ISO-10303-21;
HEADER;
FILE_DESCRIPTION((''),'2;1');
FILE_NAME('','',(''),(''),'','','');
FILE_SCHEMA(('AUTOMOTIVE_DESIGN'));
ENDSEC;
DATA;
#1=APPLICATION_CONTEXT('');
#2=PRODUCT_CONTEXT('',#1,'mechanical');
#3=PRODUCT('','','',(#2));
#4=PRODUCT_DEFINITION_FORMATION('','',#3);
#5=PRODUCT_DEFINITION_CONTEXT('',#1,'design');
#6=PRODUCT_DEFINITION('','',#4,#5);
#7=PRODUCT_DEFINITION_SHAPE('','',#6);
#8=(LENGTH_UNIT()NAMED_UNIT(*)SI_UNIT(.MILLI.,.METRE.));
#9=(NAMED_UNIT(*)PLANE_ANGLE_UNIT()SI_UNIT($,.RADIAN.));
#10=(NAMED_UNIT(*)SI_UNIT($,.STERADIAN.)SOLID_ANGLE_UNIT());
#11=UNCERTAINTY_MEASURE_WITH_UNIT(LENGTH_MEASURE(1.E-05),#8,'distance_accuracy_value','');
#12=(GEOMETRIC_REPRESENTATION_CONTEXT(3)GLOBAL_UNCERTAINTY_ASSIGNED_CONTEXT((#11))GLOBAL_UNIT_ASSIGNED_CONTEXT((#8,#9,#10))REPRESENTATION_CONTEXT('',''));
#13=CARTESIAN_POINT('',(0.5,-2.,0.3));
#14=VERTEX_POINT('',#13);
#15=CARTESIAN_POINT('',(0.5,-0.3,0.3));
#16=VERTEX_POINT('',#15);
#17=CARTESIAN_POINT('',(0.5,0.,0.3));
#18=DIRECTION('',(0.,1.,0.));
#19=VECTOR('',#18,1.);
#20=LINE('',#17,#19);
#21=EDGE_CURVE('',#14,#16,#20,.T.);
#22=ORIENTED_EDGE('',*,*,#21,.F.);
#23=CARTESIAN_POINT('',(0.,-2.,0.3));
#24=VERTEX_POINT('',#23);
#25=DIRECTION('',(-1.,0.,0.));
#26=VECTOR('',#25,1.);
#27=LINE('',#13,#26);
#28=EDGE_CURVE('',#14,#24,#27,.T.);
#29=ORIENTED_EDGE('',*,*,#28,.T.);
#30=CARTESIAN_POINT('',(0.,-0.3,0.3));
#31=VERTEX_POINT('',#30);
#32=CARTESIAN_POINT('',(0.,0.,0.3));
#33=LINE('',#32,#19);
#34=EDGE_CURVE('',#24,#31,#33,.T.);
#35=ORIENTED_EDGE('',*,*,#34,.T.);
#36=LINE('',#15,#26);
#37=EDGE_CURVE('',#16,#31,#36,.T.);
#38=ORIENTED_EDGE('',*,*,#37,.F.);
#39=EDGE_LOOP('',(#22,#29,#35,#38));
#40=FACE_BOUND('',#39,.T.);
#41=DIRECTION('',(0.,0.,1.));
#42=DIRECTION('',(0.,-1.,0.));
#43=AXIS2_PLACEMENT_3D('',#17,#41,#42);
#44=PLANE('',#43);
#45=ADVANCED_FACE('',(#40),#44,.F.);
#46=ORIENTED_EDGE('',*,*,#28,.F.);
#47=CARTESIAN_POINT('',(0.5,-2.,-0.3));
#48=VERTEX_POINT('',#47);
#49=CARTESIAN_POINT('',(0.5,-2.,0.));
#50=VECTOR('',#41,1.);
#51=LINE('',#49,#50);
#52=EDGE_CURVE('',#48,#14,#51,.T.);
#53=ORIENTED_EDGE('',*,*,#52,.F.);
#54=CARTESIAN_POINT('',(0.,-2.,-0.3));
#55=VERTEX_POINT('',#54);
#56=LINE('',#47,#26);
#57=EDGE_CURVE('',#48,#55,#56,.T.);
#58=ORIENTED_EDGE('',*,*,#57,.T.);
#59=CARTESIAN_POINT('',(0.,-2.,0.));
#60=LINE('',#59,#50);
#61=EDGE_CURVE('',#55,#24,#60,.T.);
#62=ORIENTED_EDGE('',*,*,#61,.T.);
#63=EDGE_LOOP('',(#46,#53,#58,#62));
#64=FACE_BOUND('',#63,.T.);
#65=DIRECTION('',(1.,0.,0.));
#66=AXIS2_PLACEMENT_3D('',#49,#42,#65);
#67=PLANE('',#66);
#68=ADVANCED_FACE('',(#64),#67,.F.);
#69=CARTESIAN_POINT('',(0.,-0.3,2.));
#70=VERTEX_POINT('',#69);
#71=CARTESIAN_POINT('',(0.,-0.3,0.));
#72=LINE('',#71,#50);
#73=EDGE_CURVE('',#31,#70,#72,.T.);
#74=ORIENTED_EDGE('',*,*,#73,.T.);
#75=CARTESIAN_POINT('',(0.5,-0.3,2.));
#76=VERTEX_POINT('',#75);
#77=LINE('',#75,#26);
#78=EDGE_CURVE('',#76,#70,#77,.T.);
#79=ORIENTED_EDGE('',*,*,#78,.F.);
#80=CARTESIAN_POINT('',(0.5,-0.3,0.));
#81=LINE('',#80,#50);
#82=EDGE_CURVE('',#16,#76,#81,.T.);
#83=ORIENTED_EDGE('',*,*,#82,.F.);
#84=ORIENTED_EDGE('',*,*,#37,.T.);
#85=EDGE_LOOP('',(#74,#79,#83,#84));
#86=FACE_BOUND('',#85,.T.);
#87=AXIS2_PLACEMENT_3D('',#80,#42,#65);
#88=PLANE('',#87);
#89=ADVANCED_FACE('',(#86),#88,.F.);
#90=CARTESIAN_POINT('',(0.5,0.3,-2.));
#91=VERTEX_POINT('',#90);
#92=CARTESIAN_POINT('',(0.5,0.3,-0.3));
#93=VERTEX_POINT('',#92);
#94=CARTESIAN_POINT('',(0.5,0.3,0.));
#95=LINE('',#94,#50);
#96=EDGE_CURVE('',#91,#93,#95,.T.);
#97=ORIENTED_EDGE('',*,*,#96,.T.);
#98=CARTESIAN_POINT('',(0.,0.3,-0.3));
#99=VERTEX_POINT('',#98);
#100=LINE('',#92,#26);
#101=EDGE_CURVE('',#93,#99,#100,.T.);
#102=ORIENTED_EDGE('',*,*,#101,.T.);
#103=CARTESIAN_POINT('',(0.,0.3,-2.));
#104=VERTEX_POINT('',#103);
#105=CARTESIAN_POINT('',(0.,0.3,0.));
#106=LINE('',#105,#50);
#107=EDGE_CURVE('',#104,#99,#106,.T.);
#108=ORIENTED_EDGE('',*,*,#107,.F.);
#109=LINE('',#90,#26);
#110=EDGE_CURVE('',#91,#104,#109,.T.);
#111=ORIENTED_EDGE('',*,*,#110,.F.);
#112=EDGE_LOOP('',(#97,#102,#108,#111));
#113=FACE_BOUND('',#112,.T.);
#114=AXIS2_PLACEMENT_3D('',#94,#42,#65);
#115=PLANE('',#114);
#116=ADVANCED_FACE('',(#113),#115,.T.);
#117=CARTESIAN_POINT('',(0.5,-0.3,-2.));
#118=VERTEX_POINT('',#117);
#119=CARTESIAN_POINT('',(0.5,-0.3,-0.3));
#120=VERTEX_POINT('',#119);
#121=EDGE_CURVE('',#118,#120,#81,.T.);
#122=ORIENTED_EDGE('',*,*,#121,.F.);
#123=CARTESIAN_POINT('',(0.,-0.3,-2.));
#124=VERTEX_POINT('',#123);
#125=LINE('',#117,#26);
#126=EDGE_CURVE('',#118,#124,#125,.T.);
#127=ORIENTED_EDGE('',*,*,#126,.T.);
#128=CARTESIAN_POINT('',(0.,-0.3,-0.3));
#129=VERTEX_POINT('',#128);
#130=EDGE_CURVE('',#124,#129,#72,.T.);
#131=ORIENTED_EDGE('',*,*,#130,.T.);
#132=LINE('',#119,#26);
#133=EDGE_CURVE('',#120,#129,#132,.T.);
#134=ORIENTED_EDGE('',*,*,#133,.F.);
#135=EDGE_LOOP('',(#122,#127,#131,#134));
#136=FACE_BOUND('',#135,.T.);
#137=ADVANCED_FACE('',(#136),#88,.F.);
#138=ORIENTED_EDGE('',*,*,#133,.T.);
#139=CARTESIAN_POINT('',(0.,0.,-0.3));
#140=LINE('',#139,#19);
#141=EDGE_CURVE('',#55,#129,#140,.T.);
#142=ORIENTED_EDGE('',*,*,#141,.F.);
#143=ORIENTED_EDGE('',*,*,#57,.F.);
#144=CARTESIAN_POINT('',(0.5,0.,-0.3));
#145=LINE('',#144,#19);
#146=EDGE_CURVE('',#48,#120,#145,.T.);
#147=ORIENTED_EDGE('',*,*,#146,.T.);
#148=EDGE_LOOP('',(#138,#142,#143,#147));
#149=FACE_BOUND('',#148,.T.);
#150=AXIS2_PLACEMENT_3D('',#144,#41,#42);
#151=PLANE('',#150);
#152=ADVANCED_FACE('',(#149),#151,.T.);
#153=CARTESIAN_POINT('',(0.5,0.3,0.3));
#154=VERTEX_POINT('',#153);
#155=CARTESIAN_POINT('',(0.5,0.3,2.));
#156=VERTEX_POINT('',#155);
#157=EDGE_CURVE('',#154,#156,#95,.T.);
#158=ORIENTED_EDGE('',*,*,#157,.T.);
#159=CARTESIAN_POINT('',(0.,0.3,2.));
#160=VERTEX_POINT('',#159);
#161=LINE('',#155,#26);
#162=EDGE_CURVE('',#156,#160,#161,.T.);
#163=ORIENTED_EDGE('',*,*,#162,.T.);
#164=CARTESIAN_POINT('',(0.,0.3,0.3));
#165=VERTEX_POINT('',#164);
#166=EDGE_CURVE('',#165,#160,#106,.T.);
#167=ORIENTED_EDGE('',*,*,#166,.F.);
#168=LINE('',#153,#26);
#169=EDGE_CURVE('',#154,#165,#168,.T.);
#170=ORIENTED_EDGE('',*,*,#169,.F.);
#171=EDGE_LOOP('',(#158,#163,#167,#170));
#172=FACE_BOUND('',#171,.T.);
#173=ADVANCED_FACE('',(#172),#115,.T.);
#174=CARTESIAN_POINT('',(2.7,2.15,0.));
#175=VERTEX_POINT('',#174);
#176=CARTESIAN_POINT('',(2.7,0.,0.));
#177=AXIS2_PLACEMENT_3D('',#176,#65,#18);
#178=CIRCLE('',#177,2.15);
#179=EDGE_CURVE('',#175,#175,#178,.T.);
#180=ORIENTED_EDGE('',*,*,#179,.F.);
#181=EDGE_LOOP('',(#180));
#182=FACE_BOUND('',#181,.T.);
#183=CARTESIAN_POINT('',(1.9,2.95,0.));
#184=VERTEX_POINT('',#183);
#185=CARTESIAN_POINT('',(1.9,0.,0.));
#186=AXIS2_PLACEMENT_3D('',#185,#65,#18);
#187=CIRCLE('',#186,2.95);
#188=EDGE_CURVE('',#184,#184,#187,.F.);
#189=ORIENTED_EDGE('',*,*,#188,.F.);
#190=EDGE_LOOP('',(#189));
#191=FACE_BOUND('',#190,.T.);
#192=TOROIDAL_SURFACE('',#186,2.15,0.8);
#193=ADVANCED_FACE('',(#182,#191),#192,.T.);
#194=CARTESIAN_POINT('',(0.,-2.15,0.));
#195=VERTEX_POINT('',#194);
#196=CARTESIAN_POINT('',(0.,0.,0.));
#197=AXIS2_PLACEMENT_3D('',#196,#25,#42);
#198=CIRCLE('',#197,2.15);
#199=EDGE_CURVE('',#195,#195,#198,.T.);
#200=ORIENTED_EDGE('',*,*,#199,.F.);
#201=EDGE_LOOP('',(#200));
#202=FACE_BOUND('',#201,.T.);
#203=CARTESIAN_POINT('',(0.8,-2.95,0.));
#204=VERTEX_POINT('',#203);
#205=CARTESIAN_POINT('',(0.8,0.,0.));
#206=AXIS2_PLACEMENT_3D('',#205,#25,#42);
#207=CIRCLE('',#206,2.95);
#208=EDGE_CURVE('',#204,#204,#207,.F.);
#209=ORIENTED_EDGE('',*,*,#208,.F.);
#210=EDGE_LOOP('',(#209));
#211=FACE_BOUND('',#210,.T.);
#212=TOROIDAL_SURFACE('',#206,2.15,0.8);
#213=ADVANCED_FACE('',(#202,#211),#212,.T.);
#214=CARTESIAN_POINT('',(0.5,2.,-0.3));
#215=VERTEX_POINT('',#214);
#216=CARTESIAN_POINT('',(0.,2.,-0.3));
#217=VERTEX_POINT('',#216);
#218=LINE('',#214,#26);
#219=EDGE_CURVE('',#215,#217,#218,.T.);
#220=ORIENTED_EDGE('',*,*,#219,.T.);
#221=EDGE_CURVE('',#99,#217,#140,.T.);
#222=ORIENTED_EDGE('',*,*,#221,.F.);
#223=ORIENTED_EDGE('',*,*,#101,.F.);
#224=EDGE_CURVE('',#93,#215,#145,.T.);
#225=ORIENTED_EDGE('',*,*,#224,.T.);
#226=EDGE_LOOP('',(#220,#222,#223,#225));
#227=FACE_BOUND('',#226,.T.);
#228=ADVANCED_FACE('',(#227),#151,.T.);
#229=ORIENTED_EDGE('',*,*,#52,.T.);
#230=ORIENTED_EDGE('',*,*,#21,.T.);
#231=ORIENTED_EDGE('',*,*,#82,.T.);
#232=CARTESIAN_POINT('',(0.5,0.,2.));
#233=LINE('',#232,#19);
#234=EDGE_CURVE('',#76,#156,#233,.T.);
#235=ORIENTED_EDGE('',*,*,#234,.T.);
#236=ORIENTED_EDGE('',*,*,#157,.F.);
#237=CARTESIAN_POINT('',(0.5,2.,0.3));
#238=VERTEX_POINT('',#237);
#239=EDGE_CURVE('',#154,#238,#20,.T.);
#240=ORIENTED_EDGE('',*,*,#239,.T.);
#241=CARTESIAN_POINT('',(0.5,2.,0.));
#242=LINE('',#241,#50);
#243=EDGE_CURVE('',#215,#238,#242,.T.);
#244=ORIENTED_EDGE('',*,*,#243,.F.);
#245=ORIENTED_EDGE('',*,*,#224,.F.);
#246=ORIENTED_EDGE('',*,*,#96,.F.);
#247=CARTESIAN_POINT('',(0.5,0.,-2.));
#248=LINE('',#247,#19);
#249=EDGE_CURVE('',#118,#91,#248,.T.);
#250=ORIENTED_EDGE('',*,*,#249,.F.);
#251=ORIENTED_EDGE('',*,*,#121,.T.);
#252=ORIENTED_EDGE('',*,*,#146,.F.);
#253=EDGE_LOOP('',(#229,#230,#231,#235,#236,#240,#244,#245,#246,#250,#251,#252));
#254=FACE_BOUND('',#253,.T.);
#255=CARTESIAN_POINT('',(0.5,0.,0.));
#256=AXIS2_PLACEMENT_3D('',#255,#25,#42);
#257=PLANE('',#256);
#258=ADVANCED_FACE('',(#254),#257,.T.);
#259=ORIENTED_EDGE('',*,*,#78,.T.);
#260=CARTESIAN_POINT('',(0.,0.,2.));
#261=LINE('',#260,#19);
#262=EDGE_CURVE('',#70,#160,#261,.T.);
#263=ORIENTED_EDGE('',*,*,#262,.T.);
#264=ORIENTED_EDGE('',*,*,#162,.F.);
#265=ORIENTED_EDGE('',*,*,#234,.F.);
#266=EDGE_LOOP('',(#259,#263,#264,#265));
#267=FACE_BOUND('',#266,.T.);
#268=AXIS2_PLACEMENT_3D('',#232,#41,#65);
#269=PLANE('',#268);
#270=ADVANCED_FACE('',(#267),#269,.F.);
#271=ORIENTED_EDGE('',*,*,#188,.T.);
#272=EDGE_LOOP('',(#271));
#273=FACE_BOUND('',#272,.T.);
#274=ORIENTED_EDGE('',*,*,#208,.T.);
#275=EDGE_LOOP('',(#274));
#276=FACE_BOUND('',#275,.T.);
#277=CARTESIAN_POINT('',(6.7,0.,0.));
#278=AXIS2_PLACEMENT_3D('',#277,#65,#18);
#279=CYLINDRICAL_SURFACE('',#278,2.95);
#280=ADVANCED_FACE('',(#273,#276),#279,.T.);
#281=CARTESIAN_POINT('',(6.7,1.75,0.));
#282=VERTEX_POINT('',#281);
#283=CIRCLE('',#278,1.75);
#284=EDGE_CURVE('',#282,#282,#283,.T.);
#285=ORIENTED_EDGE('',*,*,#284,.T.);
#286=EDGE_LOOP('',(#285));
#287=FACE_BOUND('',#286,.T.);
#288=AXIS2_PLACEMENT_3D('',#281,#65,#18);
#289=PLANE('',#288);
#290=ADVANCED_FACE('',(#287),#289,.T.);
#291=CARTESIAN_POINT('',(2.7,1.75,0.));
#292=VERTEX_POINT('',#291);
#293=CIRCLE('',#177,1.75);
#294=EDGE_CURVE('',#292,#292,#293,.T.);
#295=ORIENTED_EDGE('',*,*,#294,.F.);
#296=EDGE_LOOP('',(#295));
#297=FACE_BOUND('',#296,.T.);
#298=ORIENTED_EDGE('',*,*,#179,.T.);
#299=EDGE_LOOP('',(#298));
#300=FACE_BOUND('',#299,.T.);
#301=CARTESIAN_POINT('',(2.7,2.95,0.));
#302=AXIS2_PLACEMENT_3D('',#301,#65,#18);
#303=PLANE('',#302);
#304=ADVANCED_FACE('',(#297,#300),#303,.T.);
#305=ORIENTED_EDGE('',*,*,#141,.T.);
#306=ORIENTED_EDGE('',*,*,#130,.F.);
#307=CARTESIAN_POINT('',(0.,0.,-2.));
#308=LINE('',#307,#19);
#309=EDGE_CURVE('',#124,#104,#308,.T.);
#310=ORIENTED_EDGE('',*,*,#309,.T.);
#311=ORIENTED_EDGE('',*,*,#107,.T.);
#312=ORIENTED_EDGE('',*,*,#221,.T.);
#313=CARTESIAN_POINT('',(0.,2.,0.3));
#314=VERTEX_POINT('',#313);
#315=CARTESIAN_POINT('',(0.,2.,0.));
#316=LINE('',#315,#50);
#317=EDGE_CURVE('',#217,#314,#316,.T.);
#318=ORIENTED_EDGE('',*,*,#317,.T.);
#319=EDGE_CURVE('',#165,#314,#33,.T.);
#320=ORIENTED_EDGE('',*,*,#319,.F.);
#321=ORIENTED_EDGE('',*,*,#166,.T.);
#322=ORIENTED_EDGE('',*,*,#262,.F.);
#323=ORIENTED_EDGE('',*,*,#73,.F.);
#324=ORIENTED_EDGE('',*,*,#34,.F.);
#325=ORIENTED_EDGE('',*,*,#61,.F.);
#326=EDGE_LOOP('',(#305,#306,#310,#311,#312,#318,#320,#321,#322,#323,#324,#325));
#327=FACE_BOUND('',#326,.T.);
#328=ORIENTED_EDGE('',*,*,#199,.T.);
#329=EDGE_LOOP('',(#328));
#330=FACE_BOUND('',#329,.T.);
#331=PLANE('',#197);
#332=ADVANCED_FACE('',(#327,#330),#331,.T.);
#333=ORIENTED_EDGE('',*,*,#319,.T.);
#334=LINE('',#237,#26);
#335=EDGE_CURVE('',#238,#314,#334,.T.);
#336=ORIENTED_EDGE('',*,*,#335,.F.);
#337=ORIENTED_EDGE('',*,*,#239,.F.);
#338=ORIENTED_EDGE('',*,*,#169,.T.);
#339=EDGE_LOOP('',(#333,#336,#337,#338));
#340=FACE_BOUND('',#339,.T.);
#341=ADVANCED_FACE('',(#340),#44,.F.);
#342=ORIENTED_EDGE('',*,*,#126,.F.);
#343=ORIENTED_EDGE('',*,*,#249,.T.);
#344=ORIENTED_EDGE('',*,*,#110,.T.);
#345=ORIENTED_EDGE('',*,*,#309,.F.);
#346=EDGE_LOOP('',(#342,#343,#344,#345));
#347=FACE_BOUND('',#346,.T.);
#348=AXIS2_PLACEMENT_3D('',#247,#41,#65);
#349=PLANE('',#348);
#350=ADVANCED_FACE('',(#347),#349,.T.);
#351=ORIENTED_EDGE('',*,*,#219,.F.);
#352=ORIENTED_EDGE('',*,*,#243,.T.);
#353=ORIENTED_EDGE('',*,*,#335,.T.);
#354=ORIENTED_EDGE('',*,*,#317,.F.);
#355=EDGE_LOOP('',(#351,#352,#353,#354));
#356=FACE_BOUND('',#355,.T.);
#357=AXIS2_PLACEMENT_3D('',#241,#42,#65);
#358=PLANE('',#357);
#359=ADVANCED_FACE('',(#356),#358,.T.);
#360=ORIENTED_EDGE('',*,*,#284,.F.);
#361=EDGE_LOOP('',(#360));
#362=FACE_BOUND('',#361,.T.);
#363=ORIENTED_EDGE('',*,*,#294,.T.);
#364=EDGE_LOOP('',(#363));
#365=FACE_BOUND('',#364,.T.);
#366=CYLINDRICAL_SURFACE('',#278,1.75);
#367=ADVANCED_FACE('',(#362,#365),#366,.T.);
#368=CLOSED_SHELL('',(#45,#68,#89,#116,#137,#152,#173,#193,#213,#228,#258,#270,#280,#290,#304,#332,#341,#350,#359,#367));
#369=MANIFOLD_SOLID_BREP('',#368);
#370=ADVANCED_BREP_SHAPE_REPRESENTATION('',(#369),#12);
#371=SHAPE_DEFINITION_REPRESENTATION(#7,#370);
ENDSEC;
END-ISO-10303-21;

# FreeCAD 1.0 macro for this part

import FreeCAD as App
import Part
import Sketcher

V = App.Vector
Q = App.Units.Quantity


def edges_at(feature, points):
    """Names of the edges that pass closest to the given points."""
    edges = feature.Shape.Edges
    near = lambda p: min(range(len(edges)), key=lambda i: edges[i].distToShape(Part.Vertex(*p))[0])
    return sorted({f"Edge{near(p) + 1}" for p in points})

doc = App.newDocument("Part")
params = doc.addObject("Spreadsheet::Sheet", "Params")
for row, (alias, value) in enumerate([
    ("sketch1_width", "4 mm"),
    ("sketch1_width2", "6.7 mm"),
    ("sketch1_height", "1.2 mm"),
    ("sketch1_height2", "2.95 mm"),
    ("revolution_angle", "360 deg"),
    ("sketch2_width", "0.6 mm"),
    ("sketch2_width2", "1.7 mm"),
    ("pocket1_length", "0.5 mm"),
    ("fillet_radius", "0.8 mm"),
], start=1):
    params.set(f"A{row}", alias)
    params.set(f"B{row}", "=" + value)
    params.setAlias(f"B{row}", alias)

body = doc.addObject("PartDesign::Body", "Body")

sketch1 = doc.addObject("Sketcher::SketchObject", "Sketch")
body.addObject(sketch1)
sketch1.AttachmentSupport = (doc.XY_Plane, [""])
sketch1.MapMode = "FlatFace"
sketch1.addGeometry(Part.LineSegment(V(0, 3, 0), V(0, 0, 0)), False)
sketch1.addGeometry(Part.LineSegment(V(0, 0, 0), V(6.7, 0, 0)), False)
sketch1.addGeometry(Part.LineSegment(V(6.7, 0, 0), V(6.7, 1.8, 0)), False)
sketch1.addGeometry(Part.LineSegment(V(6.7, 1.8, 0), V(2.7, 1.8, 0)), False)
sketch1.addGeometry(Part.LineSegment(V(2.7, 1.8, 0), V(2.7, 3, 0)), False)
sketch1.addGeometry(Part.LineSegment(V(2.7, 3, 0), V(0, 3, 0)), False)
sketch1.addConstraint(Sketcher.Constraint("Coincident", 0, 2, 1, 1))
sketch1.addConstraint(Sketcher.Constraint("Coincident", 1, 2, 2, 1))
sketch1.addConstraint(Sketcher.Constraint("Coincident", 2, 2, 3, 1))
sketch1.addConstraint(Sketcher.Constraint("Coincident", 3, 2, 4, 1))
sketch1.addConstraint(Sketcher.Constraint("Coincident", 4, 2, 5, 1))
sketch1.addConstraint(Sketcher.Constraint("Coincident", 5, 2, 0, 1))
sketch1.addConstraint(Sketcher.Constraint("Vertical", 0))
sketch1.addConstraint(Sketcher.Constraint("Horizontal", 1))
sketch1.addConstraint(Sketcher.Constraint("Vertical", 2))
sketch1.addConstraint(Sketcher.Constraint("Horizontal", 3))
sketch1.addConstraint(Sketcher.Constraint("Vertical", 4))
sketch1.addConstraint(Sketcher.Constraint("Horizontal", 5))
sketch1.addConstraint(Sketcher.Constraint("Coincident", 0, 2, -1, 1))
sketch1.addConstraint(Sketcher.Constraint("DistanceX", 3, 2, 3, 1, Q("4 mm")))
sketch1.addConstraint(Sketcher.Constraint("DistanceX", 1, 1, 1, 2, Q("6.7 mm")))
sketch1.addConstraint(Sketcher.Constraint("DistanceY", 4, 1, 4, 2, Q("1.2 mm")))
sketch1.addConstraint(Sketcher.Constraint("DistanceY", 0, 2, 0, 1, Q("2.95 mm")))
sketch1.setExpression("Constraints[13]", "Params.sketch1_width")
sketch1.setExpression("Constraints[14]", "Params.sketch1_width2")
sketch1.setExpression("Constraints[15]", "Params.sketch1_height")
sketch1.setExpression("Constraints[16]", "Params.sketch1_height2")
revolution = doc.addObject("PartDesign::Revolution", "Revolution")
body.addObject(revolution)
revolution.Profile = sketch1
revolution.ReferenceAxis = (sketch1, ["H_Axis"])
revolution.setExpression("Angle", "Params.revolution_angle")

sketch2 = doc.addObject("Sketcher::SketchObject", "Sketch001")
body.addObject(sketch2)
sketch2.AttachmentSupport = (doc.YZ_Plane, [""])
sketch2.MapMode = "FlatFace"
sketch2.addGeometry(Part.LineSegment(V(-0.3, 0.3, 0), V(-0.3, 2, 0)), False)
sketch2.addGeometry(Part.LineSegment(V(-0.3, 2, 0), V(0.3, 2, 0)), False)
sketch2.addGeometry(Part.LineSegment(V(0.3, 2, 0), V(0.3, 0.3, 0)), False)
sketch2.addGeometry(Part.LineSegment(V(0.3, 0.3, 0), V(2, 0.3, 0)), False)
sketch2.addGeometry(Part.LineSegment(V(2, 0.3, 0), V(2, -0.3, 0)), False)
sketch2.addGeometry(Part.LineSegment(V(2, -0.3, 0), V(0.3, -0.3, 0)), False)
sketch2.addGeometry(Part.LineSegment(V(0.3, -0.3, 0), V(0.3, -2, 0)), False)
sketch2.addGeometry(Part.LineSegment(V(0.3, -2, 0), V(-0.3, -2, 0)), False)
sketch2.addGeometry(Part.LineSegment(V(-0.3, -2, 0), V(-0.3, -0.3, 0)), False)
sketch2.addGeometry(Part.LineSegment(V(-0.3, -0.3, 0), V(-2, -0.3, 0)), False)
sketch2.addGeometry(Part.LineSegment(V(-2, -0.3, 0), V(-2, 0.3, 0)), False)
sketch2.addGeometry(Part.LineSegment(V(-2, 0.3, 0), V(-0.3, 0.3, 0)), False)
sketch2.addConstraint(Sketcher.Constraint("Coincident", 0, 2, 1, 1))
sketch2.addConstraint(Sketcher.Constraint("Coincident", 1, 2, 2, 1))
sketch2.addConstraint(Sketcher.Constraint("Coincident", 2, 2, 3, 1))
sketch2.addConstraint(Sketcher.Constraint("Coincident", 3, 2, 4, 1))
sketch2.addConstraint(Sketcher.Constraint("Coincident", 4, 2, 5, 1))
sketch2.addConstraint(Sketcher.Constraint("Coincident", 5, 2, 6, 1))
sketch2.addConstraint(Sketcher.Constraint("Coincident", 6, 2, 7, 1))
sketch2.addConstraint(Sketcher.Constraint("Coincident", 7, 2, 8, 1))
sketch2.addConstraint(Sketcher.Constraint("Coincident", 8, 2, 9, 1))
sketch2.addConstraint(Sketcher.Constraint("Coincident", 9, 2, 10, 1))
sketch2.addConstraint(Sketcher.Constraint("Coincident", 10, 2, 11, 1))
sketch2.addConstraint(Sketcher.Constraint("Coincident", 11, 2, 0, 1))
sketch2.addConstraint(Sketcher.Constraint("Vertical", 0))
sketch2.addConstraint(Sketcher.Constraint("Horizontal", 1))
sketch2.addConstraint(Sketcher.Constraint("Vertical", 2))
sketch2.addConstraint(Sketcher.Constraint("Horizontal", 3))
sketch2.addConstraint(Sketcher.Constraint("Vertical", 4))
sketch2.addConstraint(Sketcher.Constraint("Horizontal", 5))
sketch2.addConstraint(Sketcher.Constraint("Vertical", 6))
sketch2.addConstraint(Sketcher.Constraint("Horizontal", 7))
sketch2.addConstraint(Sketcher.Constraint("Vertical", 8))
sketch2.addConstraint(Sketcher.Constraint("Horizontal", 9))
sketch2.addConstraint(Sketcher.Constraint("Vertical", 10))
sketch2.addConstraint(Sketcher.Constraint("Horizontal", 11))
sketch2.addConstraint(Sketcher.Constraint("Symmetric", 0, 2, 6, 2, -1, 1))
sketch2.addConstraint(Sketcher.Constraint("Symmetric", 2, 2, 8, 2, -1, 1))
sketch2.addConstraint(Sketcher.Constraint("Symmetric", 4, 2, 10, 2, -1, 1))
sketch2.addConstraint(Sketcher.Constraint("Symmetric", 5, 2, 8, 2, -2))
sketch2.addConstraint(Sketcher.Constraint("Equal", 11, 0))
sketch2.addConstraint(Sketcher.Constraint("Equal", 7, 4))
sketch2.addConstraint(Sketcher.Constraint("DistanceX", 1, 1, 1, 2, Q("0.6 mm")))
sketch2.addConstraint(Sketcher.Constraint("DistanceX", 3, 1, 3, 2, Q("1.7 mm")))
sketch2.setExpression("Constraints[30]", "Params.sketch2_width")
sketch2.setExpression("Constraints[31]", "Params.sketch2_width2")
pocket1 = doc.addObject("PartDesign::Pocket", "Pocket")
body.addObject(pocket1)
pocket1.Profile = sketch2
pocket1.setExpression("Length", "Params.pocket1_length")
pocket1.Reversed = True
doc.recompute()

fillet = doc.addObject("PartDesign::Fillet", "Fillet")
body.addObject(fillet)
fillet.Base = (pocket1, edges_at(pocket1, [(2.7, -2.95, 0), (0, -2.95, 0)]))
fillet.setExpression("Radius", "Params.fillet_radius")

doc.recompute()
